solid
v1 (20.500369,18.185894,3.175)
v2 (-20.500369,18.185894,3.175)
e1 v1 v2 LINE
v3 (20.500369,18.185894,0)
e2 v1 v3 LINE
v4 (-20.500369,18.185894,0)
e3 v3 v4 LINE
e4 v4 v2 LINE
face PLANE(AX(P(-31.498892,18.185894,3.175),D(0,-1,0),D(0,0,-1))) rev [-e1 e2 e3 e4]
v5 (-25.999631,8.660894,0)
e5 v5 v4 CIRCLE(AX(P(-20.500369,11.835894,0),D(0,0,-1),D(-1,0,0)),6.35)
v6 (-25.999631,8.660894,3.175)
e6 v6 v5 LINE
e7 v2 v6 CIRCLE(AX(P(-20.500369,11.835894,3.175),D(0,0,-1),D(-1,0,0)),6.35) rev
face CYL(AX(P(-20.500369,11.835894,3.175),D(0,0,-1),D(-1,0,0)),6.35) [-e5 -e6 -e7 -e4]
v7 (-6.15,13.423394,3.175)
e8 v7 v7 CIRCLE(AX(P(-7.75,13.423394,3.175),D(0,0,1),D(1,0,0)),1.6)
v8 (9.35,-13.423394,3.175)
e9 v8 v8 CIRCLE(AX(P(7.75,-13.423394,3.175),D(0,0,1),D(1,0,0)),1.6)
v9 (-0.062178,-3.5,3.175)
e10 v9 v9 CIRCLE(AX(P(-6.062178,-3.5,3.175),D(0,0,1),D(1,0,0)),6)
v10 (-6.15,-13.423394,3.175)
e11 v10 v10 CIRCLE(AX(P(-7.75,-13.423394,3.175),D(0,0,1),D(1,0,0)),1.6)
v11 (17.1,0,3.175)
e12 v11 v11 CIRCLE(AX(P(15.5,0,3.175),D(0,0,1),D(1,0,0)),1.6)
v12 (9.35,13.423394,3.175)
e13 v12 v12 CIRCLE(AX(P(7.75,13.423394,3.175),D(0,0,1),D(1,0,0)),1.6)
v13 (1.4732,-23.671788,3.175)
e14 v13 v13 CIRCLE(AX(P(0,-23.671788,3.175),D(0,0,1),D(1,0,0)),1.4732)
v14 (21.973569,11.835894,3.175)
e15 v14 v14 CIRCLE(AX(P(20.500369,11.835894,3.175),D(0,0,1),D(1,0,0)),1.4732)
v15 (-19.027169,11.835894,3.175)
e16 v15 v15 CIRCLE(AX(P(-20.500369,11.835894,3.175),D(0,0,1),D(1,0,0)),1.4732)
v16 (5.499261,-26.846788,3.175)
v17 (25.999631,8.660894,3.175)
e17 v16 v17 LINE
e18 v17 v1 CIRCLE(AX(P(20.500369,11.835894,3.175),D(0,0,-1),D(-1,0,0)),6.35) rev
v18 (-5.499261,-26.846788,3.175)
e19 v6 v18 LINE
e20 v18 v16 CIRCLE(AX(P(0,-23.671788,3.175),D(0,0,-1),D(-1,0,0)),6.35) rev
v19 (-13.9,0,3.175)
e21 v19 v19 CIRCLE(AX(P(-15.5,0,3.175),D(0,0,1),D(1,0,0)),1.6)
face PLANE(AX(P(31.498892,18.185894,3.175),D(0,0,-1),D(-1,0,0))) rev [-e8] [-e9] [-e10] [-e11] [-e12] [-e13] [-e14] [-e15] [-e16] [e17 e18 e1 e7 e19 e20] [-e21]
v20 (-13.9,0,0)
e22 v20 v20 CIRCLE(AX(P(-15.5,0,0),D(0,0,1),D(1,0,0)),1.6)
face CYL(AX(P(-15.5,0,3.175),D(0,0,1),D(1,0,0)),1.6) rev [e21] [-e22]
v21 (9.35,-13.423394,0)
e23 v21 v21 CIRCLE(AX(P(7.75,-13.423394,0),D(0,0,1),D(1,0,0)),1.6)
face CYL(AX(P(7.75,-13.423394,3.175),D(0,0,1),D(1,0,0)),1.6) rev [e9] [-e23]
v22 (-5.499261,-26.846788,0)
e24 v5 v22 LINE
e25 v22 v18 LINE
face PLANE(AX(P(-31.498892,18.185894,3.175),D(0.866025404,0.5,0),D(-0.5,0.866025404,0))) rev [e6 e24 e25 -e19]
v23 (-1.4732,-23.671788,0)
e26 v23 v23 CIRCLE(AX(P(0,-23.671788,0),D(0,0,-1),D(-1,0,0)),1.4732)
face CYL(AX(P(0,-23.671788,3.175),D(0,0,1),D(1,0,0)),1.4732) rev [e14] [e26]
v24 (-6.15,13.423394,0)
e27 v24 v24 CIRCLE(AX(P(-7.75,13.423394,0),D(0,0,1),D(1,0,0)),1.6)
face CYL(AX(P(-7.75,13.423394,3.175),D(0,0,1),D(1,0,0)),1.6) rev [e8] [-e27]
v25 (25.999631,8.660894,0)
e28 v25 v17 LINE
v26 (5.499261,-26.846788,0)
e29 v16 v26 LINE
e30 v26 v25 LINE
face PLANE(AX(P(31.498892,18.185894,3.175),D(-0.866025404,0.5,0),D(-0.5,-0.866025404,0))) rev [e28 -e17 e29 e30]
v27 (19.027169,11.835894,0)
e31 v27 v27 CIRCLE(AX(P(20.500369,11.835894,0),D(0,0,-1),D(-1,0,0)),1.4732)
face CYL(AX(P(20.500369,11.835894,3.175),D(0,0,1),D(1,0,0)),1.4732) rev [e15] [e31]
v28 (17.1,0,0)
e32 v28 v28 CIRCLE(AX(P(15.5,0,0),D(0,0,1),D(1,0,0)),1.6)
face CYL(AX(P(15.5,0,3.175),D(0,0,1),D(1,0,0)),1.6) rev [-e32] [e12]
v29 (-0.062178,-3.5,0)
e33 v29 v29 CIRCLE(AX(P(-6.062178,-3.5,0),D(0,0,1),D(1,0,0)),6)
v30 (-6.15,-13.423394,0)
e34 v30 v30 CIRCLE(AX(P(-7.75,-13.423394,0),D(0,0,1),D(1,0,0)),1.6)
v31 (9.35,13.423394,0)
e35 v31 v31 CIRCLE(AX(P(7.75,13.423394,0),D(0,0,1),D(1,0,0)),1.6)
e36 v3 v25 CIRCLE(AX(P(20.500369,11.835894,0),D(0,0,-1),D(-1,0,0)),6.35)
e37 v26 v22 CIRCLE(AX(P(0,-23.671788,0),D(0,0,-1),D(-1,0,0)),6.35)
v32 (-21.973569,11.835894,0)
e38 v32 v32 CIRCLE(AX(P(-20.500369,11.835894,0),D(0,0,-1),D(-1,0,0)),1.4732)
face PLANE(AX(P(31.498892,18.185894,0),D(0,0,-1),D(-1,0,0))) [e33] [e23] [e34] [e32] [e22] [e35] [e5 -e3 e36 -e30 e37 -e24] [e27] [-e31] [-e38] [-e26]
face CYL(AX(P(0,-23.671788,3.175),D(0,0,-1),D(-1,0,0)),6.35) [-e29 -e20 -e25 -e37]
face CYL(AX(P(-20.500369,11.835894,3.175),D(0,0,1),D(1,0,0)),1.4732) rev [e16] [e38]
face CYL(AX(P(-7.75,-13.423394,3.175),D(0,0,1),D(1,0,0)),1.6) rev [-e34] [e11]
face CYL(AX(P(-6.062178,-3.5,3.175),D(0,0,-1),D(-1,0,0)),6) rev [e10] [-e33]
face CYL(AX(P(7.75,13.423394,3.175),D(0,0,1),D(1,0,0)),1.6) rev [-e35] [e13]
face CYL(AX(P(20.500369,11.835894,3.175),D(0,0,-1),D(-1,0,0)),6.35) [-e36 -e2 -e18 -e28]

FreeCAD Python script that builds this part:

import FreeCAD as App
import Part
import Sketcher
Q = App.Units.Quantity


def edges_at(feature, points):
    """Names of the edges that pass closest to the given points."""
    edges = feature.Shape.Edges
    near = lambda p: min(range(len(edges)), key=lambda i: edges[i].distToShape(Part.Vertex(*p))[0])
    return sorted({f"Edge{near(p) + 1}" for p in points})


def add_polygon(sketch, points):
    """Adds a closed chain of lines whose ends are joined by coincident constraints."""
    first, n = sketch.GeometryCount, len(points)
    for a, b in zip(points, points[1:] + points[:1]):
        sketch.addGeometry(Part.LineSegment(App.Vector(*a, 0), App.Vector(*b, 0)), False)
    for i in range(n):
        sketch.addConstraint(Sketcher.Constraint("Coincident", first + i, 2, first + (i + 1) % n, 1))

doc = App.newDocument("Part")
body = doc.addObject("PartDesign::Body", "Body")

sketch1 = body.newObject("Sketcher::SketchObject", "Sketch")
sketch1.AttachmentSupport = (doc.getObject("XY_Plane"), [""])
sketch1.MapMode = "FlatFace"
add_polygon(sketch1, [(-31, 18), (0, -36), (31, 18)])
sketch1.addGeometry(Part.Circle(App.Vector(-6, -4, 0), App.Vector(0, 0, 1), 6), False)
sketch1.addConstraint([
    Sketcher.Constraint("Horizontal", 2),
    Sketcher.Constraint("PointOnObject", 0, 2, -2),
    Sketcher.Constraint("Equal", 0, 1),
    Sketcher.Constraint("Angle", 0, Q("-60 deg")),
    Sketcher.Constraint("Diameter", 3, 12.0),
    Sketcher.Constraint("DistanceY", 3, 3, -1, 1, 3.5),
    Sketcher.Constraint("DistanceX", 2, 2, 2, 1, 62.997784),
    Sketcher.Constraint("DistanceX", 3, 3, 1, 2, 37.56107),
    Sketcher.Constraint("DistanceY", 0, 2, -1, 1, 36.371788),
])
pad1 = body.newObject("PartDesign::Pad", "Pad")
pad1.Profile = sketch1
pad1.Length = Q("0.125 in")

sketch2 = body.newObject("Sketcher::SketchObject", "Sketch001")
sketch2.AttachmentSupport = (doc.getObject("XY_Plane"), [""])
sketch2.MapMode = "FlatFace"
sketch2.AttachmentOffset = App.Placement(App.Vector(0, 0, 0.125 * 25.4), App.Rotation())
sketch2.addGeometry([
    Part.Circle(App.Vector(-7.8, 13.4, 0), App.Vector(0, 0, 1), 1.6),
    Part.Circle(App.Vector(7.8, 13.4, 0), App.Vector(0, 0, 1), 1.6),
    Part.Circle(App.Vector(15.5, 0, 0), App.Vector(0, 0, 1), 1.6),
    Part.Circle(App.Vector(-15.5, 0, 0), App.Vector(0, 0, 1), 1.6),
    Part.Circle(App.Vector(-7.8, -13.4, 0), App.Vector(0, 0, 1), 1.6),
    Part.Circle(App.Vector(7.8, -13.4, 0), App.Vector(0, 0, 1), 1.6),
], False)
sketch2.addConstraint([
    Sketcher.Constraint("Equal", 0, 1),
    Sketcher.Constraint("Equal", 1, 2),
    Sketcher.Constraint("Equal", 2, 3),
    Sketcher.Constraint("Equal", 3, 4),
    Sketcher.Constraint("Equal", 4, 5),
    Sketcher.Constraint("Symmetric", 2, 3, 3, 3, -1, 1),
    Sketcher.Constraint("Symmetric", 1, 3, 4, 3, -1, 1),
    Sketcher.Constraint("Symmetric", 0, 3, 5, 3, -1, 1),
    Sketcher.Constraint("Symmetric", 0, 3, 1, 3, -2),
    Sketcher.Constraint("PointOnObject", 2, 3, -1),
    Sketcher.Constraint("Diameter", 0, 3.2),
    Sketcher.Constraint("DistanceX", 0, 3, -1, 1, 7.75),
    Sketcher.Constraint("DistanceX", -1, 1, 2, 3, 15.5),
    Sketcher.Constraint("DistanceY", -1, 1, 0, 3, 13.423394),
])
doc.recompute()
hole = body.newObject("PartDesign::Hole", "Hole")
hole.Profile = sketch2
hole.ThreadType = "None"
hole.Diameter = 3.2
hole.DepthType = "ThroughAll"
doc.recompute()

fillet = body.newObject("PartDesign::Fillet", "Fillet")
fillet.Base = (hole, edges_at(hole, [(31.499, 18.186, 1.587), (0, -36.372, 1.587), (-31.499, 18.186, 1.587)]))
fillet.Radius = Q("0.25 in")

sketch3 = body.newObject("Sketcher::SketchObject", "Sketch002")
sketch3.AttachmentSupport = (doc.getObject("XY_Plane"), [""])
sketch3.MapMode = "FlatFace"
sketch3.AttachmentOffset = App.Placement(App.Vector(0, 0, 0.125 * 25.4), App.Rotation())
sketch3.addGeometry([
    Part.Circle(App.Vector(-20.5, 11.8, 0), App.Vector(0, 0, 1), 1.5),
    Part.Circle(App.Vector(20.5, 11.8, 0), App.Vector(0, 0, 1), 1.5),
    Part.Circle(App.Vector(0, -23.7, 0), App.Vector(0, 0, 1), 1.5),
], False)
sketch3.addConstraint([
    Sketcher.Constraint("Equal", 0, 1),
    Sketcher.Constraint("Equal", 1, 2),
    Sketcher.Constraint("Symmetric", 0, 3, 1, 3, -2),
    Sketcher.Constraint("PointOnObject", 2, 3, -2),
    Sketcher.Constraint("Diameter", 0, Q("0.116 in")),
    Sketcher.Constraint("DistanceX", 0, 3, -1, 1, 20.500369),
    Sketcher.Constraint("DistanceY", 2, 3, 0, 3, 35.507681),
    Sketcher.Constraint("DistanceY", -1, 1, 0, 3, 11.835894),
])
doc.recompute()
hole2 = body.newObject("PartDesign::Hole", "Hole001")
hole2.Profile = sketch3
hole2.ThreadType = "None"
hole2.Diameter = Q("0.116 in")
hole2.DepthType = "Dimension"
hole2.Depth = Q("0.13 in")
hole2.DrillPoint = "Angled"
hole2.DrillPointAngle = 118

doc.recompute()
